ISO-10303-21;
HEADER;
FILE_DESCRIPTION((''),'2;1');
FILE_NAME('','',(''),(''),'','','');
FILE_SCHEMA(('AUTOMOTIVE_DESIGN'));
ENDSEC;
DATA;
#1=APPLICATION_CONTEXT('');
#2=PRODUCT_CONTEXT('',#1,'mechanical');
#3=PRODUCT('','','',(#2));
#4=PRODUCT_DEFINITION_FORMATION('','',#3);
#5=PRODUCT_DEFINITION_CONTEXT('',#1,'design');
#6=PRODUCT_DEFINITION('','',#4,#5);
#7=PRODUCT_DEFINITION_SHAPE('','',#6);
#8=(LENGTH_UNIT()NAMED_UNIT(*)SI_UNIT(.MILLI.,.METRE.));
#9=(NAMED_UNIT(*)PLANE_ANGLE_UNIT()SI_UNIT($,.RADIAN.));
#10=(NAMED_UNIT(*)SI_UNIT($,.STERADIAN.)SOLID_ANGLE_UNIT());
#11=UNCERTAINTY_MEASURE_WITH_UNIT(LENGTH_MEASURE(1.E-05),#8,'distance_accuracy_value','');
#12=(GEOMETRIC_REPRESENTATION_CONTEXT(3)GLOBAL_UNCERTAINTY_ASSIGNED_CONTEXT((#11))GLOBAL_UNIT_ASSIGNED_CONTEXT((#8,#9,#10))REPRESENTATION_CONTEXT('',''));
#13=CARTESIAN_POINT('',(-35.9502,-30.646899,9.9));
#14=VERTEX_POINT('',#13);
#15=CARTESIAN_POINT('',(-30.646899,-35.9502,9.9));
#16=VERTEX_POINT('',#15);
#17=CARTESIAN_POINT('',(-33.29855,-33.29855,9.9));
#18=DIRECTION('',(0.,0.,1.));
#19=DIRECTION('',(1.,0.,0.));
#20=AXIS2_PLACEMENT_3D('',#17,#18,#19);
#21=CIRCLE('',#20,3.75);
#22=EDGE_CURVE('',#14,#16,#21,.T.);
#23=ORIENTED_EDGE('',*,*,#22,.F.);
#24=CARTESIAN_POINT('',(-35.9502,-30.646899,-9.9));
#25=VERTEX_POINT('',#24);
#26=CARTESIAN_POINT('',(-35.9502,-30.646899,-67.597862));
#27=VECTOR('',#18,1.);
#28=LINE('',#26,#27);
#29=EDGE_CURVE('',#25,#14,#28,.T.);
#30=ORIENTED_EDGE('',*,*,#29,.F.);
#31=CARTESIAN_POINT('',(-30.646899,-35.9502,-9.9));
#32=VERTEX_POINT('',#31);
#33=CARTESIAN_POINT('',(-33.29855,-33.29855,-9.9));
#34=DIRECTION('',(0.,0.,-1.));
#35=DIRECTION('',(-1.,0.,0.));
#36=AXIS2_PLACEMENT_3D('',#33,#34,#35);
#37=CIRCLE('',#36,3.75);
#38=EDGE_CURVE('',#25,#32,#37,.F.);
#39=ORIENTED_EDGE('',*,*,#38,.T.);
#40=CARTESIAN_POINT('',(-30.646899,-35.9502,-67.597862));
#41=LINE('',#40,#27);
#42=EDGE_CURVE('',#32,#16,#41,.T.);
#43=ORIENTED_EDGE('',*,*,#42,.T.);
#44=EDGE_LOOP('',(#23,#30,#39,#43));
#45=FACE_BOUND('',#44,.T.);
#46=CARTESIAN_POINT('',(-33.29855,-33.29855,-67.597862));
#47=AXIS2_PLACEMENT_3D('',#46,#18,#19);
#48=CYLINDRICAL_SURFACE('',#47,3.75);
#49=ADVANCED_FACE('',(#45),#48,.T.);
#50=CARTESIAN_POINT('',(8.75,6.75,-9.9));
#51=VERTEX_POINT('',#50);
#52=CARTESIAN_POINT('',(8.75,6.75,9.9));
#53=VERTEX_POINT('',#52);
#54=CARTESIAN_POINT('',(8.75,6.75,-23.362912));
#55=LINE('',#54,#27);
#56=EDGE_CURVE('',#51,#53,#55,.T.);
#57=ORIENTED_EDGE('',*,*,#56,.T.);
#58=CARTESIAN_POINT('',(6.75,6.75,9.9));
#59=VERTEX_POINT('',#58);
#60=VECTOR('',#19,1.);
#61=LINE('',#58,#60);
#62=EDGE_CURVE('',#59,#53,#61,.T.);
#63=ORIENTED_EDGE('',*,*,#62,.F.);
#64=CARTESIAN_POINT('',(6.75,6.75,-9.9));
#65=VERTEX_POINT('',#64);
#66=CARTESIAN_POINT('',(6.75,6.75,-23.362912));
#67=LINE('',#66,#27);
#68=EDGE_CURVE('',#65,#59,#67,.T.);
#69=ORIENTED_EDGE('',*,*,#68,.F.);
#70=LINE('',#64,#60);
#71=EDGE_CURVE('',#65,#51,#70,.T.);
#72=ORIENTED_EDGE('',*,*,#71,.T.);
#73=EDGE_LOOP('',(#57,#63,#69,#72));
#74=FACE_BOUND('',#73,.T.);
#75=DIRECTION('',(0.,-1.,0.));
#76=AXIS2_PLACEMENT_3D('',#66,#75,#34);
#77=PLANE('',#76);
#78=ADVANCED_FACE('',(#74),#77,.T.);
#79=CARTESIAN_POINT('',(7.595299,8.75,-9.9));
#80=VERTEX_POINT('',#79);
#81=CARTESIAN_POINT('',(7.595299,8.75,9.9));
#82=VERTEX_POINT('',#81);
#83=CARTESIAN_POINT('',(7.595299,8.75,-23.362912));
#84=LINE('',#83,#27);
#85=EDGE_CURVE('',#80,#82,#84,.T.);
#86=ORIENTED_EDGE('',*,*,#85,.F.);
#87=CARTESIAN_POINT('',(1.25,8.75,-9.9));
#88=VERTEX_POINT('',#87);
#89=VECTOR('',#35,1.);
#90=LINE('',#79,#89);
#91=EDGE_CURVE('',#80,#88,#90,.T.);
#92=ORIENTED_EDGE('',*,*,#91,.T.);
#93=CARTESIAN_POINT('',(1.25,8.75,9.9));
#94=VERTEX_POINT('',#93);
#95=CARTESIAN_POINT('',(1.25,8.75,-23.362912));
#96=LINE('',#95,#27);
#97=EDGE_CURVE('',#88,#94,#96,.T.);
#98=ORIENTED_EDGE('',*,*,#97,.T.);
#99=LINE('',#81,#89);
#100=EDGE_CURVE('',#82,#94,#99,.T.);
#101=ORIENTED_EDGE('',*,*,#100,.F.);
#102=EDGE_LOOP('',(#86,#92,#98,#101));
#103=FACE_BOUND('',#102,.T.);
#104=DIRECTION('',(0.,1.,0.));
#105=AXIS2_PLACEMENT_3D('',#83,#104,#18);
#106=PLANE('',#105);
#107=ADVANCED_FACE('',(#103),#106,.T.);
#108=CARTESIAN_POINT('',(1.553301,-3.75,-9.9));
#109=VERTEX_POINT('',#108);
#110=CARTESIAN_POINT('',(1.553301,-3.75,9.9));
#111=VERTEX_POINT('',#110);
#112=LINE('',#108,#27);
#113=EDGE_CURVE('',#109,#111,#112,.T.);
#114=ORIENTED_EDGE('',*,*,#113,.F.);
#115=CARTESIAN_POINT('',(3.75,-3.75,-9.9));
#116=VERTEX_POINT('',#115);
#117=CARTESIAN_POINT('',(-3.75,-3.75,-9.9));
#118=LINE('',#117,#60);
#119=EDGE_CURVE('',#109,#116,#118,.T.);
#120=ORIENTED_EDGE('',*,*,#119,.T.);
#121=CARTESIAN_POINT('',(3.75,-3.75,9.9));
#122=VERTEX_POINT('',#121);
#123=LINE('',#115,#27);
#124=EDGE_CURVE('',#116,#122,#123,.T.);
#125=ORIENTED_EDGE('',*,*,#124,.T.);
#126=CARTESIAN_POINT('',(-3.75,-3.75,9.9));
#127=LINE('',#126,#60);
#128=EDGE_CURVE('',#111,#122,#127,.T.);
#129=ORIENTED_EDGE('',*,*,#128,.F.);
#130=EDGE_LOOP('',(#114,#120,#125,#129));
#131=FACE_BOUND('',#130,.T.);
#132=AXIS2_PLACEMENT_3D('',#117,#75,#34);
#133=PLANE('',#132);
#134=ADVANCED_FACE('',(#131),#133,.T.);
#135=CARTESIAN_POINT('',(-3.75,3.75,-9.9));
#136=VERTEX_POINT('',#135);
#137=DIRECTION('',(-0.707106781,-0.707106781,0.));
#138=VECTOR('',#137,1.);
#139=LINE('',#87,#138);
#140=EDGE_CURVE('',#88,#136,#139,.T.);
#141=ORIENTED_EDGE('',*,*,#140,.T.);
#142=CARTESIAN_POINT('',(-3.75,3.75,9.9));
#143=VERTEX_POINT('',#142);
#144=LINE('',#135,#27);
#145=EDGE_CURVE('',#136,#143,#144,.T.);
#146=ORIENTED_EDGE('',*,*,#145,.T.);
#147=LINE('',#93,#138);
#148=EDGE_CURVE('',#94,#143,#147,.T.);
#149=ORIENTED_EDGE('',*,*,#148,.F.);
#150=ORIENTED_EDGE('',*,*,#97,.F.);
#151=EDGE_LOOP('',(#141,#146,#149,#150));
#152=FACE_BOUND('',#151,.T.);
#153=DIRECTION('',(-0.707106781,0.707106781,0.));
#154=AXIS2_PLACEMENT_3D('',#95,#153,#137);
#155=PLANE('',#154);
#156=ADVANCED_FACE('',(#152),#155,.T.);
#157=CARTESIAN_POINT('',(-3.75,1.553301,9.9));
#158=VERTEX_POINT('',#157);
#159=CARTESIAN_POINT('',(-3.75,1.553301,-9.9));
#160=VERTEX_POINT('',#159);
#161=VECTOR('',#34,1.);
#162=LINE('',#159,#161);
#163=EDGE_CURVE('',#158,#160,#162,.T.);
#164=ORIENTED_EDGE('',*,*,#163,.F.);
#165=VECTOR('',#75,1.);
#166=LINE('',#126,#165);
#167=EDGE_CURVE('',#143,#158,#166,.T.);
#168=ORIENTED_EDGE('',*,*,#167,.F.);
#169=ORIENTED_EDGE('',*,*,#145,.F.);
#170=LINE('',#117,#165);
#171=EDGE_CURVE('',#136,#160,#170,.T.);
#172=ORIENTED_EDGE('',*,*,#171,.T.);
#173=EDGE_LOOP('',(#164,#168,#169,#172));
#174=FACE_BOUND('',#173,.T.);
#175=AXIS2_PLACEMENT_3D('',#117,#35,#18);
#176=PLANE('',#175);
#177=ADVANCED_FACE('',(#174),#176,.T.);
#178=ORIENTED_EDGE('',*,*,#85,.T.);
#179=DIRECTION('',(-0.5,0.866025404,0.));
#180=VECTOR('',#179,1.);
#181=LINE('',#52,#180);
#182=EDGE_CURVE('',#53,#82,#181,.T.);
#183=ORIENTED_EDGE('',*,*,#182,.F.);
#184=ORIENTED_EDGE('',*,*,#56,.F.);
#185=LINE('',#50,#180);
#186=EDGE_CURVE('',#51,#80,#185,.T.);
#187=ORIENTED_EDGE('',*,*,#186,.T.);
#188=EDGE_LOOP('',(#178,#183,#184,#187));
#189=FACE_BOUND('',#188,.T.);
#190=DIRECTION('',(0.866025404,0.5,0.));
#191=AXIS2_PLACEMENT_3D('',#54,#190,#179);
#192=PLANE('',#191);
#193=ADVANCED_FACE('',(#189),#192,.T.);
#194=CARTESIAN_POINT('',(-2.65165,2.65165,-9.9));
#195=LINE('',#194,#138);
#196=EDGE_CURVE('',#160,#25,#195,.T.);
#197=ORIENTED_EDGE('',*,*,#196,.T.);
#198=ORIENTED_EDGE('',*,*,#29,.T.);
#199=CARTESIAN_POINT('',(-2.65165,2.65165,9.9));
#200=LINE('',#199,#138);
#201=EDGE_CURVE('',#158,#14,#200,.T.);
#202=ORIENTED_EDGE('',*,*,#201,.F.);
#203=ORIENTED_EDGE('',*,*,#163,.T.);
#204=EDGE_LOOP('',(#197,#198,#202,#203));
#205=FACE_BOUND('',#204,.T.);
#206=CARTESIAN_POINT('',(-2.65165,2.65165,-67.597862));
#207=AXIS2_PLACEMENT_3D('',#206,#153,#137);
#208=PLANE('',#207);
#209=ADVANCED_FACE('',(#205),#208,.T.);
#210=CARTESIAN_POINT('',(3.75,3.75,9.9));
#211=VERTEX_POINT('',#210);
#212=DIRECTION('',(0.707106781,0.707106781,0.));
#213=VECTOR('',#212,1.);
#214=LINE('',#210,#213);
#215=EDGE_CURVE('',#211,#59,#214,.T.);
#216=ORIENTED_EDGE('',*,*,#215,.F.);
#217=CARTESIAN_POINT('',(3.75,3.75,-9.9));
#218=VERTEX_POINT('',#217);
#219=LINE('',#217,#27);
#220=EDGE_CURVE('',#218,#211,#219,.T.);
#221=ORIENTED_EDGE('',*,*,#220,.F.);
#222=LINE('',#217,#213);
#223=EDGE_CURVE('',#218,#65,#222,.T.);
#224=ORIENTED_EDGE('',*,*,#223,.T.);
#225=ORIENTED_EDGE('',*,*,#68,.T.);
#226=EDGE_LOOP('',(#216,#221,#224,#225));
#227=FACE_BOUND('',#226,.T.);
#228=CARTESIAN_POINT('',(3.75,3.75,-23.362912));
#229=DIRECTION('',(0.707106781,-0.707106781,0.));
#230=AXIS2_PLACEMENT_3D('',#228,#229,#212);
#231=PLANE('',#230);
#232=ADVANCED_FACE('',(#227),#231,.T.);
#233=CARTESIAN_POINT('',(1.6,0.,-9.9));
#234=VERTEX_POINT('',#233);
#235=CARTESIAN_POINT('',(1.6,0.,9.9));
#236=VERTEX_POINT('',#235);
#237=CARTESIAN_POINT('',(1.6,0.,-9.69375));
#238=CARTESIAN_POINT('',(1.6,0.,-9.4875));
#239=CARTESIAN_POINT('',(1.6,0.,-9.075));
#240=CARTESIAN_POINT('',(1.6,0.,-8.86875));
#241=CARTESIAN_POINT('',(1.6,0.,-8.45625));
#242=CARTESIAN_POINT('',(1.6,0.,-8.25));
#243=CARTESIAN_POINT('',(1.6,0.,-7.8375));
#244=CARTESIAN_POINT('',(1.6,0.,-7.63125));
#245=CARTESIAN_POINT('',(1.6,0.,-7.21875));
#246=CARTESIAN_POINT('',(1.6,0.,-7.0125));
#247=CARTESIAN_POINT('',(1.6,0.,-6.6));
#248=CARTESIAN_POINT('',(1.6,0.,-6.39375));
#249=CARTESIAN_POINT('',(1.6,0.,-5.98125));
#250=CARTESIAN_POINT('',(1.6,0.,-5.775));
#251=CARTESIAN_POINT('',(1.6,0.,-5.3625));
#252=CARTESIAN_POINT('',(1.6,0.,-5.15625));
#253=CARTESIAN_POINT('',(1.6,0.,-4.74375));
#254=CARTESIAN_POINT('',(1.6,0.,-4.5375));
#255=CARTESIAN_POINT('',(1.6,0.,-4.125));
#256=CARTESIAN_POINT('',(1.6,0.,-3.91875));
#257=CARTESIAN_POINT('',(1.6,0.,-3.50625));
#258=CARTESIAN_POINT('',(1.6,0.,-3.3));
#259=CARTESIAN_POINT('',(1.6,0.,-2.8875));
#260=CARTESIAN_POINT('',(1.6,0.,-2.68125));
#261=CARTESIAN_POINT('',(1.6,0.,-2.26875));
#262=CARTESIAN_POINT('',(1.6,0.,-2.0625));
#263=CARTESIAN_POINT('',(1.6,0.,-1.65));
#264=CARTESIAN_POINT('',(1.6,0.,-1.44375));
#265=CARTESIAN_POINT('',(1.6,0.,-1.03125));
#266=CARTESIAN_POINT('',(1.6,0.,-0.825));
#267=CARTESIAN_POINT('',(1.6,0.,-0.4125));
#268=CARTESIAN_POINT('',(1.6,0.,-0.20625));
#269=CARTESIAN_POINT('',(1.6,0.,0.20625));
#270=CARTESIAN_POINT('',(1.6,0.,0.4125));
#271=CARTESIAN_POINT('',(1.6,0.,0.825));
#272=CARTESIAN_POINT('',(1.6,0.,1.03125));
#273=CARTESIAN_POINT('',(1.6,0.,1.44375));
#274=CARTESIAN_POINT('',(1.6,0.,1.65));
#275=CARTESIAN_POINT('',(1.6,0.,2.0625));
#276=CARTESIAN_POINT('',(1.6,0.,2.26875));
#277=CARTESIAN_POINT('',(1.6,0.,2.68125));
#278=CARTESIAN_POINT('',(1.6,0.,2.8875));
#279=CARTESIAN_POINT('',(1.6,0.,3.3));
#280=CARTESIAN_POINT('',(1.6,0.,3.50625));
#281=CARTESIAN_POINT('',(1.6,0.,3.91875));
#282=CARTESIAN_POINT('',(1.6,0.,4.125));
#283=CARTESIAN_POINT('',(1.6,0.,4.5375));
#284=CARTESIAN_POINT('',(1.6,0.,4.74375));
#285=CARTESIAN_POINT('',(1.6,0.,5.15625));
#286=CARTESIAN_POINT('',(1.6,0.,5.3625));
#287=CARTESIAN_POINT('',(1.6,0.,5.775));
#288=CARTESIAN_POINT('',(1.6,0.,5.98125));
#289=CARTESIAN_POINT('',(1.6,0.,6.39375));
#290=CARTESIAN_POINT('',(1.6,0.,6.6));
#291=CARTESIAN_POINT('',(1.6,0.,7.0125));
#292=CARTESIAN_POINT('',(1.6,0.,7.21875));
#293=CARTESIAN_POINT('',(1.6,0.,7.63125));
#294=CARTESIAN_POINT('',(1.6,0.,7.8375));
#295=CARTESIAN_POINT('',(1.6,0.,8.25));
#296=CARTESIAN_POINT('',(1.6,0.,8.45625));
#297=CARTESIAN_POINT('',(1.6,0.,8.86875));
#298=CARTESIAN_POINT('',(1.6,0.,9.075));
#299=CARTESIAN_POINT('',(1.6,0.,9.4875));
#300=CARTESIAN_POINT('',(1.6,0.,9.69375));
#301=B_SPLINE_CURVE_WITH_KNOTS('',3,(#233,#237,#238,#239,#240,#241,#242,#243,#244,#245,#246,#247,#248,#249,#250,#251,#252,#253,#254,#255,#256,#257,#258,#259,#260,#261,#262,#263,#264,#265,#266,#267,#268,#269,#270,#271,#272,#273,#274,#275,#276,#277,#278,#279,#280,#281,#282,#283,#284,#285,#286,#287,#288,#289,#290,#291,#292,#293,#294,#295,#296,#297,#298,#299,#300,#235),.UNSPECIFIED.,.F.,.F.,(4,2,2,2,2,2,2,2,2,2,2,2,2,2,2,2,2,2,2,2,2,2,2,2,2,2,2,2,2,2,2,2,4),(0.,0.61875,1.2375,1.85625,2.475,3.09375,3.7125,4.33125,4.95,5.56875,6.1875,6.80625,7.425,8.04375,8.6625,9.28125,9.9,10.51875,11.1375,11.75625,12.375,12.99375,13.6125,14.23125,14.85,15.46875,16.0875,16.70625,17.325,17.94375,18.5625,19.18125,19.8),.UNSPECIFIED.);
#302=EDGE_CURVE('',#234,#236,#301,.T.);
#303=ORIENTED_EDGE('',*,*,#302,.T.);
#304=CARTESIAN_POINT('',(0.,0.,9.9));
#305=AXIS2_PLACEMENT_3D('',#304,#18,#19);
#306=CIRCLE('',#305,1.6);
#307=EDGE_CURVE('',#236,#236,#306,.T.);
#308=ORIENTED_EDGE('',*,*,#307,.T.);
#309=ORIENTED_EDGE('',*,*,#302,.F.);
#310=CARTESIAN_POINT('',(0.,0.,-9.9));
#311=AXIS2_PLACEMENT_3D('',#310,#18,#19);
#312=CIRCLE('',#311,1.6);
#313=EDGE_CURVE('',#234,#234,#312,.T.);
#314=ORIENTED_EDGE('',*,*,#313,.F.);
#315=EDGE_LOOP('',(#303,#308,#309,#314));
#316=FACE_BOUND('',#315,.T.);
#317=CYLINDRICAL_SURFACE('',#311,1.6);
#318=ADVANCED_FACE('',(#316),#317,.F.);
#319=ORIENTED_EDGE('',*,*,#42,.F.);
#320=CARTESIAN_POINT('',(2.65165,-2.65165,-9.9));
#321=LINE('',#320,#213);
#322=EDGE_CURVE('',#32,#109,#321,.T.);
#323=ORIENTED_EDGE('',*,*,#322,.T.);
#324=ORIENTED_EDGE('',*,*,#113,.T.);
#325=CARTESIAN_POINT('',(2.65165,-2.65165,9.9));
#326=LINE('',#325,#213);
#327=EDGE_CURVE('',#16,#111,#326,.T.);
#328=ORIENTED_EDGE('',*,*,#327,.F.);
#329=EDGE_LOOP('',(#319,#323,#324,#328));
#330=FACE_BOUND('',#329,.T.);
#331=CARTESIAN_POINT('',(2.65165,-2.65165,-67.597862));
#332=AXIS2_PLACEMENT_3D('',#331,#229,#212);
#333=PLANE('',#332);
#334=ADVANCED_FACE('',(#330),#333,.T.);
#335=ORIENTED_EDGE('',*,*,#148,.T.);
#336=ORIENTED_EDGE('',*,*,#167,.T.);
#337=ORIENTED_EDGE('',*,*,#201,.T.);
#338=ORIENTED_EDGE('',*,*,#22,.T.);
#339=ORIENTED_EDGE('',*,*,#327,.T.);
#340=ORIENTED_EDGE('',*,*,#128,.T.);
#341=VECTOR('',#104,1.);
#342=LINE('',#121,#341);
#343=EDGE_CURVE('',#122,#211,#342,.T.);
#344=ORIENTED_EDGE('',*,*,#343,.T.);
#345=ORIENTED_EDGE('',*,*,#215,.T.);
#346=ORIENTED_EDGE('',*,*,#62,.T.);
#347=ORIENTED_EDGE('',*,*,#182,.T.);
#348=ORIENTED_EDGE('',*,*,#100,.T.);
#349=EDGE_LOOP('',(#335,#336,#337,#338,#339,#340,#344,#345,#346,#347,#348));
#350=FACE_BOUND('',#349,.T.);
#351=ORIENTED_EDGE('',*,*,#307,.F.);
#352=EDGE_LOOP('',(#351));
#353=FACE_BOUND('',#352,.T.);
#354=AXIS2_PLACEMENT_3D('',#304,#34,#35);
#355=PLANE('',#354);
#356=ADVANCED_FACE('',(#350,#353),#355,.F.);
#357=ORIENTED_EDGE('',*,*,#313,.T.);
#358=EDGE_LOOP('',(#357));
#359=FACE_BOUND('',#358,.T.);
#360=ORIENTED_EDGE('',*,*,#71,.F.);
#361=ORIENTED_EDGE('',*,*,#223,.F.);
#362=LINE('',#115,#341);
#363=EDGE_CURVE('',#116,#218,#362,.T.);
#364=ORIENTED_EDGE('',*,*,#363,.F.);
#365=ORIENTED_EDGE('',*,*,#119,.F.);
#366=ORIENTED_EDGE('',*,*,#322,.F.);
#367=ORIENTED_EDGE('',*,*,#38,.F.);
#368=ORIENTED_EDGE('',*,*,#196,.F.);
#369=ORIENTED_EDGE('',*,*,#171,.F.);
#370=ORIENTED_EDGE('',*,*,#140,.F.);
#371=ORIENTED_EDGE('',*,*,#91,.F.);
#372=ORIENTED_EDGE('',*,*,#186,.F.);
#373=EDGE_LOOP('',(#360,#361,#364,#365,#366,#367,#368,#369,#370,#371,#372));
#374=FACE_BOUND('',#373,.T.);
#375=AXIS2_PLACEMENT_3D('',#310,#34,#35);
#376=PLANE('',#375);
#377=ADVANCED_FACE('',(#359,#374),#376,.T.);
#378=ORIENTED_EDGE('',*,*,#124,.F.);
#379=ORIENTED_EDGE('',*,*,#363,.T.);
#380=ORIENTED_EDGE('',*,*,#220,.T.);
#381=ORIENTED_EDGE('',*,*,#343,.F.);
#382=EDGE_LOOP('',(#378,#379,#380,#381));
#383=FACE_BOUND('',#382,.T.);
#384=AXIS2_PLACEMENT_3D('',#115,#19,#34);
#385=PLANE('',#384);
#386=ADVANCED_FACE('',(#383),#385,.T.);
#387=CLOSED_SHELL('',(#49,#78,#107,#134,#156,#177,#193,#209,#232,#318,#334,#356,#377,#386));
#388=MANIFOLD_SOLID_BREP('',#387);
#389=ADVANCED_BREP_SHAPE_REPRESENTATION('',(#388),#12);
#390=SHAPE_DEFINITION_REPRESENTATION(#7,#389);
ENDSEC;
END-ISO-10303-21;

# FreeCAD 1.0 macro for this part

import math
import FreeCAD as App
import Part
import Sketcher
from FreeCAD import Vector
Q = App.Units.Quantity

doc = App.newDocument("Part")
body = doc.addObject("PartDesign::Body", "Body")

sketch1 = body.newObject("Sketcher::SketchObject", "Sketch")
sketch1.AttachmentSupport = (doc.getObject("XY_Plane"), [""])
sketch1.MapMode = "FlatFace"
sketch1.addGeometry([
    Part.LineSegment(Vector(-3.8, 3.8, 0), Vector(-3.8, -3.8, 0)),
    Part.LineSegment(Vector(-3.8, -3.8, 0), Vector(3.8, -3.8, 0)),
    Part.LineSegment(Vector(3.8, -3.8, 0), Vector(3.8, 3.8, 0)),
    Part.LineSegment(Vector(3.8, 3.8, 0), Vector(-3.8, 3.8, 0)),
    Part.Circle(Vector(0, 0, 0), Vector(0, 0, 1), 1.6),
], False)
sketch1.addConstraint([
    Sketcher.Constraint("Coincident", 0, 2, 1, 1),
    Sketcher.Constraint("Coincident", 1, 2, 2, 1),
    Sketcher.Constraint("Coincident", 2, 2, 3, 1),
    Sketcher.Constraint("Coincident", 3, 2, 0, 1),
    Sketcher.Constraint("Vertical", 0),
    Sketcher.Constraint("Horizontal", 1),
    Sketcher.Constraint("Vertical", 2),
    Sketcher.Constraint("Horizontal", 3),
    Sketcher.Constraint("Coincident", 4, 3, -1, 1),
    Sketcher.Constraint("Symmetric", 0, 2, 2, 2, -1, 1),
    Sketcher.Constraint("Equal", 3, 0),
    Sketcher.Constraint("Diameter", 4, 3.2),
    Sketcher.Constraint("DistanceX", 1, 1, 1, 2, 7.5),
])
pad1 = body.newObject("PartDesign::Pad", "Pad")
pad1.Profile = sketch1
pad1.Type = "TwoLengths"
pad1.Length = 9.9
pad1.Length2 = 9.9

sketch2 = body.newObject("Sketcher::SketchObject", "Sketch001")
sketch2.AttachmentSupport = (doc.getObject("XY_Plane"), [""])
sketch2.MapMode = "FlatFace"
sketch2.AttachmentOffset = App.Placement(Vector(0, 0, 9.9), App.Rotation())
sketch2.addGeometry([
    Part.LineSegment(Vector(3.8, 3.8, 0), Vector(6.8, 6.8, 0)),
    Part.LineSegment(Vector(6.8, 6.8, 0), Vector(8.8, 6.8, 0)),
    Part.LineSegment(Vector(8.8, 6.8, 0), Vector(7.6, 8.8, 0)),
    Part.LineSegment(Vector(7.6, 8.8, 0), Vector(1.2, 8.8, 0)),
    Part.LineSegment(Vector(1.2, 8.8, 0), Vector(-3.8, 3.8, 0)),
    Part.LineSegment(Vector(-3.8, 3.8, 0), Vector(3.8, 3.8, 0)),
], False)
sketch2.addConstraint([
    Sketcher.Constraint("Coincident", 0, 2, 1, 1),
    Sketcher.Constraint("Coincident", 1, 2, 2, 1),
    Sketcher.Constraint("Coincident", 2, 2, 3, 1),
    Sketcher.Constraint("Coincident", 3, 2, 4, 1),
    Sketcher.Constraint("Coincident", 4, 2, 5, 1),
    Sketcher.Constraint("Coincident", 5, 2, 0, 1),
    Sketcher.Constraint("Horizontal", 1),
    Sketcher.Constraint("Horizontal", 3),
    Sketcher.Constraint("Horizontal", 5),
    Sketcher.Constraint("Parallel", 0, 4),
    Sketcher.Constraint("DistanceX", 1, 1, 1, 2, 2.0),
    Sketcher.Constraint("Angle", 0, Q("45 deg")),
    Sketcher.Constraint("Angle", 2, Q("120 deg")),
    Sketcher.Constraint("DistanceX", 5, 1, 5, 2, 7.5),
    Sketcher.Constraint("DistanceY", 0, 2, 2, 2, 2.0),
    Sketcher.Constraint("DistanceX", 4, 2, 3, 2, 5.0),
    Sketcher.Constraint("DistanceX", -1, 1, 0, 2, 6.75),
    Sketcher.Constraint("DistanceY", -1, 1, 0, 2, 6.75),
])
pad2 = body.newObject("PartDesign::Pad", "Pad001")
pad2.Profile = sketch2
pad2.Length = 19.8
pad2.Reversed = True

sketch3 = body.newObject("Sketcher::SketchObject", "Sketch002")
sketch3.AttachmentSupport = (doc.getObject("XY_Plane"), [""])
sketch3.MapMode = "FlatFace"
sketch3.AttachmentOffset = App.Placement(Vector(0, 0, -9.9), App.Rotation())
sketch3.addGeometry([
    Part.LineSegment(Vector(-30.6, -36, 0), Vector(2.7, -2.7, 0)),
    Part.ArcOfCircle(Part.Circle(Vector(0, 0, 0), Vector(0, 0, 1), 3.7), math.radians(-45), math.radians(135)),
    Part.LineSegment(Vector(-2.7, 2.7, 0), Vector(-36, -30.6, 0)),
    Part.ArcOfCircle(Part.Circle(Vector(-33.3, -33.3, 0), Vector(0, 0, 1), 3.8), math.radians(135), math.radians(315)),
    Part.Circle(Vector(0, 0, 0), Vector(0, 0, 1), 1.6),
], False)
sketch3.addConstraint([
    Sketcher.Constraint("Tangent", 0, 2, 1, 1),
    Sketcher.Constraint("Tangent", 1, 2, 2, 1),
    Sketcher.Constraint("Tangent", 2, 2, 3, 1),
    Sketcher.Constraint("Tangent", 3, 2, 0, 1),
    Sketcher.Constraint("Coincident", 1, 3, -1, 1),
    Sketcher.Constraint("Coincident", 4, 3, -1, 1),
    Sketcher.Constraint("Equal", 1, 3),
    Sketcher.Constraint("Diameter", 4, 3.2),
    Sketcher.Constraint("Angle", 0, Q("45 deg")),
    Sketcher.Constraint("Radius", 1, 3.75),
    Sketcher.Constraint("DistanceX", 2, 2, -1, 1, 35.9502),
])
pad3 = body.newObject("PartDesign::Pad", "Pad002")
pad3.Profile = sketch3
pad3.Length = 19.8

doc.recompute()
